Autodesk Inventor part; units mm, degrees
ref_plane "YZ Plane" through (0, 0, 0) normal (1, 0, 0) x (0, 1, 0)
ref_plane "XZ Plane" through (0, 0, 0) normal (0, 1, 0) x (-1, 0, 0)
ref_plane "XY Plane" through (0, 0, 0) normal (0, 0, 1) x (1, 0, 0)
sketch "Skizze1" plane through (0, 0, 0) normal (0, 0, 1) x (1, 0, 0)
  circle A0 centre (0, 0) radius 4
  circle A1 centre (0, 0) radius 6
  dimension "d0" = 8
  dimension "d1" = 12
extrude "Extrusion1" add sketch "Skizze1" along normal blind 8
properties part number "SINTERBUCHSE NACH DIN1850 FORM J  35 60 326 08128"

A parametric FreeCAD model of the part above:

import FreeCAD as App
import Part
import Sketcher

V = App.Vector

doc = App.newDocument("Part")
body = doc.addObject("PartDesign::Body", "Body")

# Sketch on XY plane
sketch1 = body.newObject("Sketcher::SketchObject", "Sketch")
sketch1.AttachmentSupport = (doc.getObject("XY_Plane"), [""])
sketch1.MapMode = "FlatFace"
sketch1.addGeometry([
    Part.Circle(V(0, 0, 0), V(0, 0, 1), 6),
    Part.Circle(V(0, 0, 0), V(0, 0, 1), 4),
], False)
sketch1.addConstraint([
    Sketcher.Constraint("Coincident", 0, 3, -1, 1),
    Sketcher.Constraint("Coincident", 1, 3, -1, 1),
    Sketcher.Constraint("Diameter", 0, 12.0),
    Sketcher.Constraint("Diameter", 1, 8.0),
])
pad1 = body.newObject("PartDesign::Pad", "Pad")
pad1.Profile = sketch1
pad1.Length = 8

doc.recompute()
